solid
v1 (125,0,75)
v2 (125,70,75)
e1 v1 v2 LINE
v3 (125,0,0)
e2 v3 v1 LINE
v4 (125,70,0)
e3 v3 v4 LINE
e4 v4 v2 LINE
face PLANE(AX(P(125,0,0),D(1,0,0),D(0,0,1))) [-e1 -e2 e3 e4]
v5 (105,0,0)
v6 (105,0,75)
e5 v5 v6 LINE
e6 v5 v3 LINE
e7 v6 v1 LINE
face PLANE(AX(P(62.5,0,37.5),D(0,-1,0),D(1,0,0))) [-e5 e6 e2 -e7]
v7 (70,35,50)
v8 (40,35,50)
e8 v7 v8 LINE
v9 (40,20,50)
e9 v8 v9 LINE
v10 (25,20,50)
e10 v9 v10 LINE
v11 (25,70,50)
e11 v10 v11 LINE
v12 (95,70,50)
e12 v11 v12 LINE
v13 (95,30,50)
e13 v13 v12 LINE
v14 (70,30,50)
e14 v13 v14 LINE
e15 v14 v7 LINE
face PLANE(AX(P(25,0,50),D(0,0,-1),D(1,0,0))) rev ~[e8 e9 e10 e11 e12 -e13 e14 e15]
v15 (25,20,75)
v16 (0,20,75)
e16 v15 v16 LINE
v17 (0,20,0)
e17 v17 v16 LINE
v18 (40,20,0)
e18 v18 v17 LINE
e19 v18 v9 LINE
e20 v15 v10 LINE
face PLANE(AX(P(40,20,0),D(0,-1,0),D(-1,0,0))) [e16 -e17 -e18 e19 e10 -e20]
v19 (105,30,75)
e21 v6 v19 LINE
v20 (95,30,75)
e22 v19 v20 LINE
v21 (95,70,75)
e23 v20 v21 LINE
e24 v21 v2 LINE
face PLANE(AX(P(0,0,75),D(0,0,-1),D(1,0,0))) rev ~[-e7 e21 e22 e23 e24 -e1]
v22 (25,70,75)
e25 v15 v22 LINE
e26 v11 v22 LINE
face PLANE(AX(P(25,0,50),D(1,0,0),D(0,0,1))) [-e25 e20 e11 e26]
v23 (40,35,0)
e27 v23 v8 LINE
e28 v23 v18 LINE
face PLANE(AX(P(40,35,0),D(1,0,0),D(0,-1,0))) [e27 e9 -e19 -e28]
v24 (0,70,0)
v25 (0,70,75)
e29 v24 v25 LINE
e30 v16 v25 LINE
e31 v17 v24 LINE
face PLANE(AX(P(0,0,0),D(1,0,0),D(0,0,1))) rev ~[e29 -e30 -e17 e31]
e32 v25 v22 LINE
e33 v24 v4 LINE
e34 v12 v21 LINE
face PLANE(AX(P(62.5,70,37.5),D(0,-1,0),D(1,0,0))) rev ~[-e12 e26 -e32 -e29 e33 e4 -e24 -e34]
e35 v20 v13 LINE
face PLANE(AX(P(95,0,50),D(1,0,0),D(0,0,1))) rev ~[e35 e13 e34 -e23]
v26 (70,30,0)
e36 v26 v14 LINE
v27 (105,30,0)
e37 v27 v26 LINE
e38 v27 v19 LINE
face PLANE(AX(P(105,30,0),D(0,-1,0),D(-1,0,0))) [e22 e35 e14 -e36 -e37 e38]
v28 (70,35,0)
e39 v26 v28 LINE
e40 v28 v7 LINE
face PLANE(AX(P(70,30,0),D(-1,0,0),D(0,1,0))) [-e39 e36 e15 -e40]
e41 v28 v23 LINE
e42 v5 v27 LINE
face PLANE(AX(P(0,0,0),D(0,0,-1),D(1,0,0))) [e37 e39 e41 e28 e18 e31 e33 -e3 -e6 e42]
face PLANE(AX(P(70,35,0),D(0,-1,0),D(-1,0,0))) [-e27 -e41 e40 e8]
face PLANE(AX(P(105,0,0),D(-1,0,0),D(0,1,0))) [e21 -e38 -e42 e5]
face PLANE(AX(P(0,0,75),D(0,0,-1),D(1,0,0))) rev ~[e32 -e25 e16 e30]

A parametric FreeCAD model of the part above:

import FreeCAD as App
import Part
import Sketcher

V = App.Vector


def add_polygon(sketch, points):
    """Adds a closed chain of lines whose ends are joined by coincident constraints."""
    first, n = sketch.GeometryCount, len(points)
    for a, b in zip(points, points[1:] + points[:1]):
        sketch.addGeometry(Part.LineSegment(App.Vector(*a, 0), App.Vector(*b, 0)), False)
    for i in range(n):
        sketch.addConstraint(Sketcher.Constraint("Coincident", first + i, 2, first + (i + 1) % n, 1))

doc = App.newDocument("Part")
body = doc.addObject("PartDesign::Body", "Body")

# Sketch on XZ plane
sketch1 = body.newObject("Sketcher::SketchObject", "Sketch")
sketch1.AttachmentSupport = (doc.getObject("XZ_Plane"), [""])
sketch1.MapMode = "FlatFace"
add_polygon(sketch1, [(0, 75), (0, 0), (125, 0), (125, 75)])  # lines 0-3
sketch1.addConstraint([
    Sketcher.Constraint("Vertical", 0),
    Sketcher.Constraint("Horizontal", 1),
    Sketcher.Constraint("Vertical", 2),
    Sketcher.Constraint("Horizontal", 3),
    Sketcher.Constraint("Coincident", 0, 2, -1, 1),
    Sketcher.Constraint("DistanceX", 1, 1, 1, 2, 125.0),
    Sketcher.Constraint("DistanceY", 0, 2, 0, 1, 75.0),
])
pad1 = body.newObject("PartDesign::Pad", "Pad")
pad1.Profile = sketch1
pad1.Length = 70
pad1.Reversed = True

# Sketch on XZ plane
sketch2 = body.newObject("Sketcher::SketchObject", "Sketch001")
sketch2.AttachmentSupport = (doc.getObject("XZ_Plane"), [""])
sketch2.MapMode = "FlatFace"
add_polygon(sketch2, [(25, 75), (25, 50), (95, 50), (95, 75)])  # lines 0-3
sketch2.addConstraint([
    Sketcher.Constraint("Vertical", 0),
    Sketcher.Constraint("Horizontal", 1),
    Sketcher.Constraint("Vertical", 2),
    Sketcher.Constraint("Horizontal", 3),
    Sketcher.Constraint("DistanceX", 1, 1, 1, 2, 70.0),
    Sketcher.Constraint("DistanceY", 0, 2, 0, 1, 25.0),
    Sketcher.Constraint("DistanceX", -1, 1, 0, 2, 25.0),
    Sketcher.Constraint("DistanceY", -1, 1, 0, 2, 50.0),
])
pocket1 = body.newObject("PartDesign::Pocket", "Pocket")
pocket1.Profile = sketch2
pocket1.Type = "ThroughAll"

# Sketch on XY plane
sketch3 = body.newObject("Sketcher::SketchObject", "Sketch002")
sketch3.AttachmentSupport = (doc.getObject("XY_Plane"), [""])
sketch3.MapMode = "FlatFace"
add_polygon(sketch3, [(105, 0), (105, 30), (70, 30), (70, 35), (40, 35), (40, 20), (0, 20), (0, -31), (125, -31), (125, 0)])  # lines 0-9
sketch3.addConstraint([
    Sketcher.Constraint("Vertical", 0),
    Sketcher.Constraint("Horizontal", 1),
    Sketcher.Constraint("Vertical", 2),
    Sketcher.Constraint("Horizontal", 3),
    Sketcher.Constraint("Vertical", 4),
    Sketcher.Constraint("Horizontal", 5),
    Sketcher.Constraint("Vertical", 6),
    Sketcher.Constraint("Horizontal", 7),
    Sketcher.Constraint("Vertical", 8),
    Sketcher.Constraint("Horizontal", 9),
    Sketcher.Constraint("PointOnObject", 5, 2, -2),
    Sketcher.Constraint("PointOnObject", 8, 2, -1),
    Sketcher.Constraint("Equal", 3, 0),
    Sketcher.Constraint("DistanceX", 1, 2, 1, 1, 35.0),
    Sketcher.Constraint("DistanceX", 3, 2, 3, 1, 30.0),
    Sketcher.Constraint("DistanceX", 5, 2, 5, 1, 40.0),
    Sketcher.Constraint("DistanceX", 7, 1, 7, 2, 125.0),
    Sketcher.Constraint("DistanceY", 2, 1, 2, 2, 5.0),
    Sketcher.Constraint("DistanceY", 4, 2, 4, 1, 15.0),
    Sketcher.Constraint("DistanceY", 6, 2, 6, 1, 51.133723),
])
pocket2 = body.newObject("PartDesign::Pocket", "Pocket001")
pocket2.Profile = sketch3
pocket2.Type = "ThroughAll"
pocket2.Reversed = True

doc.recompute()
